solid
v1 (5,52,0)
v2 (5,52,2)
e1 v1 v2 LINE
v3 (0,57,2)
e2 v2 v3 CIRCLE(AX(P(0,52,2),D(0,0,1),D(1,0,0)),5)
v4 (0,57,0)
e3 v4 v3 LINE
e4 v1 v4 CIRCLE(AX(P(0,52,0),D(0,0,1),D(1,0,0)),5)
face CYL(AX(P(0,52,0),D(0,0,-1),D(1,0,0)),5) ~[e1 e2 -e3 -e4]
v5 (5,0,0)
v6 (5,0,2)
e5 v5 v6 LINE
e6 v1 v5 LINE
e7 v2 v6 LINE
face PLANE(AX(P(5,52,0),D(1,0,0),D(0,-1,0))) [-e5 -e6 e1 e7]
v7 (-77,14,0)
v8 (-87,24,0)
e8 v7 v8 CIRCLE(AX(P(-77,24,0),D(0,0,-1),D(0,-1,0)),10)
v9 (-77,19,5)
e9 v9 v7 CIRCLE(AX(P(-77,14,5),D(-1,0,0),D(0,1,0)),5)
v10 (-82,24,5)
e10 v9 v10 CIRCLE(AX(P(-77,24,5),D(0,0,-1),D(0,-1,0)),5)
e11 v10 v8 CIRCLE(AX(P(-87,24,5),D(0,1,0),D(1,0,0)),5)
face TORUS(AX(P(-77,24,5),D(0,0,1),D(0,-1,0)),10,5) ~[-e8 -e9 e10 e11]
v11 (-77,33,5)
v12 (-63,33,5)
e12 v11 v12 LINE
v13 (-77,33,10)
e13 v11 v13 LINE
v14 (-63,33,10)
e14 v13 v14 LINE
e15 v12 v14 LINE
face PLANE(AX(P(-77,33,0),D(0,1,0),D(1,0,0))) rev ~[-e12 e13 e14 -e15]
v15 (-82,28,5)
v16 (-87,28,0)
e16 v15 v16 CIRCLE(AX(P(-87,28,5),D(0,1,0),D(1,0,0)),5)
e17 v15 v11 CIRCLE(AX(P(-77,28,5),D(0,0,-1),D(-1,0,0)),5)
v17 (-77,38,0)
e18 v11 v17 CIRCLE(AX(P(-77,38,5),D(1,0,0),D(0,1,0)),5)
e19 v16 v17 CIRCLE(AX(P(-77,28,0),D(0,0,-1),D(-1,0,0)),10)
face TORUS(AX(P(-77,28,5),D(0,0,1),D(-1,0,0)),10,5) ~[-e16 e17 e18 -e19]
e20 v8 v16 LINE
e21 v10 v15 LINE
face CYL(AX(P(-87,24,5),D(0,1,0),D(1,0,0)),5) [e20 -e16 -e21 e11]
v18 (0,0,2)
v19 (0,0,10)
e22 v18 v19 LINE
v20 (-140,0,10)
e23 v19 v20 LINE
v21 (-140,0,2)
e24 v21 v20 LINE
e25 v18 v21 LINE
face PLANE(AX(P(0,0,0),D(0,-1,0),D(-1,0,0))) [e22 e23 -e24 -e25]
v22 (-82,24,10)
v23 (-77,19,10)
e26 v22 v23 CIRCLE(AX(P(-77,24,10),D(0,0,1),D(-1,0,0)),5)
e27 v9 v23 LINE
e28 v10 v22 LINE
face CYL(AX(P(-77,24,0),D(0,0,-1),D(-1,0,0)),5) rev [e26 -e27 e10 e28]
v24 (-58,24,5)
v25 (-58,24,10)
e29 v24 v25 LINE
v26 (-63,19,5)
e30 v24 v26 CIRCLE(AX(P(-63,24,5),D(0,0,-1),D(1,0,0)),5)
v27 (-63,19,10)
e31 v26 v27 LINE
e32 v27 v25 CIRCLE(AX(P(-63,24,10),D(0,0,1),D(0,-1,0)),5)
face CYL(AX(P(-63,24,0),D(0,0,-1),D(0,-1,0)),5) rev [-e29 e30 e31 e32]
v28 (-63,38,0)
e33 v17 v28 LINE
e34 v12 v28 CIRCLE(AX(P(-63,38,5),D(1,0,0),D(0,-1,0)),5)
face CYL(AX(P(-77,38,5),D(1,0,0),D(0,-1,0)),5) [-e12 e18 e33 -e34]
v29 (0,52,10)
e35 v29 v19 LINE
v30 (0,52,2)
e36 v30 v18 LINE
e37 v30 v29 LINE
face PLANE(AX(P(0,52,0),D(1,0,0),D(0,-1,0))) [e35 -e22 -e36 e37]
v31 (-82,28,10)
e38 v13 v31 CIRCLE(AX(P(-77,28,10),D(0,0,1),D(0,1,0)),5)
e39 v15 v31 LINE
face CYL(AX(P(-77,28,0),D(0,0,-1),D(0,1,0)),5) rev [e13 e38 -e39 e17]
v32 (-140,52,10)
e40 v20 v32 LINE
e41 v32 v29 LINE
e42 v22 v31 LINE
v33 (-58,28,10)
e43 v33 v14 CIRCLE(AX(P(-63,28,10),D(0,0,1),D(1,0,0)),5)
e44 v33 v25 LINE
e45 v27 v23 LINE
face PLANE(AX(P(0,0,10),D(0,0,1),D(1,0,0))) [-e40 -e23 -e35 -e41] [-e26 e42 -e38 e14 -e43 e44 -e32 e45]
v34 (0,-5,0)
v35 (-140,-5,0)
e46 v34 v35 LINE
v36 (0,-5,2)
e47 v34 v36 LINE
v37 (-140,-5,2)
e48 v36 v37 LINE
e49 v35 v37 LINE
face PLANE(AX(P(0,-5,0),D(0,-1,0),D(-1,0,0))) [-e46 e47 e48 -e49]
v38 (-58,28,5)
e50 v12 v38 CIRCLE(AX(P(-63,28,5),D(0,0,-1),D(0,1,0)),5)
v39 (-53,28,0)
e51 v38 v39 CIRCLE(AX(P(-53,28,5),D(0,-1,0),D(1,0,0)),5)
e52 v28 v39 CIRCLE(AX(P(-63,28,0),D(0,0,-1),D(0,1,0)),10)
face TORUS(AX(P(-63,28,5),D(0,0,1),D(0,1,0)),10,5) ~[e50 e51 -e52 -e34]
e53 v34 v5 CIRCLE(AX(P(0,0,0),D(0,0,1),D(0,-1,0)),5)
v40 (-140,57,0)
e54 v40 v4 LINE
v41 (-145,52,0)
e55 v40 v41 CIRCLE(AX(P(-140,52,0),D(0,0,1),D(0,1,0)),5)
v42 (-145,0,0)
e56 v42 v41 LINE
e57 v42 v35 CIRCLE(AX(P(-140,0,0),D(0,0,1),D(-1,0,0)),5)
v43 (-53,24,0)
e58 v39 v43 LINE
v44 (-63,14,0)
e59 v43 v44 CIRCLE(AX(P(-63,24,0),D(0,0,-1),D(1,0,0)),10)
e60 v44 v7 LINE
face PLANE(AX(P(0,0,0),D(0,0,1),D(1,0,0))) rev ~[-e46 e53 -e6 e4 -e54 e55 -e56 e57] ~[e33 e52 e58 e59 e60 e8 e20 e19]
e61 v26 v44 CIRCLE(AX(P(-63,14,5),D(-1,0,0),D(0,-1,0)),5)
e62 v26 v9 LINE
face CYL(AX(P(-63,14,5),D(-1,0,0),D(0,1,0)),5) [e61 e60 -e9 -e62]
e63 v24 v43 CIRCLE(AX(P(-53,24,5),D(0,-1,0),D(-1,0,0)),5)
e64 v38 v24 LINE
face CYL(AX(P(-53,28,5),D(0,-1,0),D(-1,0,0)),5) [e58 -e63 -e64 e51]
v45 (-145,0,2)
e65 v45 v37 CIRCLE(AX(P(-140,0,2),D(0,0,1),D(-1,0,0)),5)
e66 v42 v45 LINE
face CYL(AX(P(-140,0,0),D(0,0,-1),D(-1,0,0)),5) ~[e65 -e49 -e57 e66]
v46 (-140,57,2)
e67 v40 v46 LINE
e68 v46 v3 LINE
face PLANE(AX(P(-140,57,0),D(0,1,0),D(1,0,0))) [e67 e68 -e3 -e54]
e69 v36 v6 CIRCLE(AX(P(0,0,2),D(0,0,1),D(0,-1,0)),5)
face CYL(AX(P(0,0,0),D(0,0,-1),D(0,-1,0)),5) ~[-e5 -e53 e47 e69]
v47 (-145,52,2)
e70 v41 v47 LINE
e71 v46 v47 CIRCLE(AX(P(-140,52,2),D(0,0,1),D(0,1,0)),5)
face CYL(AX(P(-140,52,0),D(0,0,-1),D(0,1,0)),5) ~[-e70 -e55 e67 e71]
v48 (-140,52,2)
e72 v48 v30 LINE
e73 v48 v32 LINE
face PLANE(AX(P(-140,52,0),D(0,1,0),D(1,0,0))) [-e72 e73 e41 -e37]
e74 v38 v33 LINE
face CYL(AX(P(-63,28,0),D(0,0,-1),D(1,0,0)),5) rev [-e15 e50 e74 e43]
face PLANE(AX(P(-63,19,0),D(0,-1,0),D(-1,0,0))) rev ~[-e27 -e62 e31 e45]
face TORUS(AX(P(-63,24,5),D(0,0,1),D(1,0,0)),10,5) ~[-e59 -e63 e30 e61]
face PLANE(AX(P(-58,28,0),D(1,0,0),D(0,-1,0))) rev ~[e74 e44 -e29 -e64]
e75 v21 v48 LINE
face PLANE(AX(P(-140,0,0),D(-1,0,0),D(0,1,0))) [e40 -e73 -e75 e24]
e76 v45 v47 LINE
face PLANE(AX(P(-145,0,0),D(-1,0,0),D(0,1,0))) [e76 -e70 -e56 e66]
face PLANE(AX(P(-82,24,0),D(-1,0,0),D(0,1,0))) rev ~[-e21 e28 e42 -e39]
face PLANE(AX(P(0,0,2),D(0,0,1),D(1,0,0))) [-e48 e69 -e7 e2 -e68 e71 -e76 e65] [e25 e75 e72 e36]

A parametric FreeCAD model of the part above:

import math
import FreeCAD as App
import Part
import Sketcher
Q = App.Units.Quantity


def edges_at(feature, points):
    """Names of the edges that pass closest to the given points."""
    edges = feature.Shape.Edges
    near = lambda p: min(range(len(edges)), key=lambda i: edges[i].distToShape(Part.Vertex(*p))[0])
    return sorted({f"Edge{near(p) + 1}" for p in points})


def add_polygon(sketch, points):
    """Adds a closed chain of lines whose ends are joined by coincident constraints."""
    first, n = sketch.GeometryCount, len(points)
    for a, b in zip(points, points[1:] + points[:1]):
        sketch.addGeometry(Part.LineSegment(App.Vector(*a, 0), App.Vector(*b, 0)), False)
    for i in range(n):
        sketch.addConstraint(Sketcher.Constraint("Coincident", first + i, 2, first + (i + 1) % n, 1))

doc = App.newDocument("Part")
body = doc.addObject("PartDesign::Body", "Body")

# Sketch on XY plane
sketch1 = doc.addObject("Sketcher::SketchObject", "Sketch")
body.addObject(sketch1)
sketch1.AttachmentSupport = (doc.XY_Plane, [""])
sketch1.MapMode = "FlatFace"
add_polygon(sketch1, [(-140, 0), (0, 0), (0, 52), (-140, 52)])  # lines 0-3
sketch1.addGeometry(Part.ArcOfCircle(Part.Circle(App.Vector(-63, 24, 0), App.Vector(0, 0, 1), 5), math.radians(-90), math.radians(0)), False)  # 4
sketch1.addGeometry(Part.LineSegment(App.Vector(-63, 19, 0), App.Vector(-77, 19, 0)), False)  # 5
sketch1.addGeometry(Part.ArcOfCircle(Part.Circle(App.Vector(-77, 24, 0), App.Vector(0, 0, 1), 5), math.radians(180), math.radians(270)), False)  # 6
sketch1.addGeometry(Part.LineSegment(App.Vector(-82, 24, 0), App.Vector(-82, 28, 0)), False)  # 7
sketch1.addGeometry(Part.ArcOfCircle(Part.Circle(App.Vector(-77, 28, 0), App.Vector(0, 0, 1), 5), math.radians(90), math.radians(180)), False)  # 8
sketch1.addGeometry(Part.LineSegment(App.Vector(-77, 33, 0), App.Vector(-63, 33, 0)), False)  # 9
sketch1.addGeometry(Part.ArcOfCircle(Part.Circle(App.Vector(-63, 28, 0), App.Vector(0, 0, 1), 5), math.radians(0), math.radians(90)), False)  # 10
sketch1.addGeometry(Part.LineSegment(App.Vector(-58, 28, 0), App.Vector(-58, 24, 0)), False)  # 11
sketch1.addConstraint([
    Sketcher.Constraint("Tangent", 4, 1, 5, 1),
    Sketcher.Constraint("Tangent", 5, 2, 6, 2),
    Sketcher.Constraint("Tangent", 6, 1, 7, 1),
    Sketcher.Constraint("Tangent", 7, 2, 8, 2),
    Sketcher.Constraint("Tangent", 8, 1, 9, 1),
    Sketcher.Constraint("Tangent", 9, 2, 10, 2),
    Sketcher.Constraint("Tangent", 10, 1, 11, 1),
    Sketcher.Constraint("Tangent", 11, 2, 4, 2),
    Sketcher.Constraint("Horizontal", 0),
    Sketcher.Constraint("Vertical", 1),
    Sketcher.Constraint("Horizontal", 2),
    Sketcher.Constraint("Vertical", 3),
    Sketcher.Constraint("Horizontal", 5),
    Sketcher.Constraint("Vertical", 7),
    Sketcher.Constraint("Horizontal", 9),
    Sketcher.Constraint("Vertical", 11),
    Sketcher.Constraint("Coincident", 0, 2, -1, 1),
    Sketcher.Constraint("Equal", 4, 6),
    Sketcher.Constraint("Equal", 6, 8),
    Sketcher.Constraint("Equal", 8, 10),
    Sketcher.Constraint("Radius", 4, Q("5 mm")),
    Sketcher.Constraint("DistanceX", 0, 1, 0, 2, Q("140 mm")),
    Sketcher.Constraint("DistanceX", 5, 2, 5, 1, Q("14 mm")),
    Sketcher.Constraint("DistanceY", 1, 1, 1, 2, Q("52 mm")),
    Sketcher.Constraint("DistanceY", -1, 1, 4, 3, Q("24 mm")),
    Sketcher.Constraint("DistanceX", 10, 1, -1, 1, Q("58 mm")),
    Sketcher.Constraint("DistanceY", 10, 3, 1, 2, Q("24 mm")),
])
pad1 = doc.addObject("PartDesign::Pad", "Pad")
body.addObject(pad1)
pad1.Profile = sketch1
pad1.Length = 10
doc.recompute()

fillet = doc.addObject("PartDesign::Fillet", "Fillet")
body.addObject(fillet)
fillet.Base = (pad1, edges_at(pad1, [
    (-82, 26, 0),
    (-80.535, 31.535, 0),
    (-70, 33, 0),
    (-59.465, 31.535, 0),
    (-58, 26, 0),
    (-59.465, 20.465, 0),
    (-70, 19, 0),
    (-80.535, 20.465, 0),
]))
fillet.Radius = 5

# Sketch on XY plane
sketch2 = doc.addObject("Sketcher::SketchObject", "Sketch001")
body.addObject(sketch2)
sketch2.AttachmentSupport = (doc.XY_Plane, [""])
sketch2.MapMode = "FlatFace"
sketch2.addGeometry(Part.LineSegment(App.Vector(-140, -5, 0), App.Vector(0, -5, 0)), False)  # 0
sketch2.addGeometry(Part.ArcOfCircle(Part.Circle(App.Vector(0, 0, 0), App.Vector(0, 0, 1), 5), math.radians(-90), math.radians(0)), False)  # 1
sketch2.addGeometry(Part.LineSegment(App.Vector(5, 0, 0), App.Vector(5, 52, 0)), False)  # 2
sketch2.addGeometry(Part.ArcOfCircle(Part.Circle(App.Vector(0, 52, 0), App.Vector(0, 0, 1), 5), math.radians(0), math.radians(90)), False)  # 3
sketch2.addGeometry(Part.LineSegment(App.Vector(0, 57, 0), App.Vector(-140, 57, 0)), False)  # 4
sketch2.addGeometry(Part.ArcOfCircle(Part.Circle(App.Vector(-140, 52, 0), App.Vector(0, 0, 1), 5), math.radians(90), math.radians(180)), False)  # 5
sketch2.addGeometry(Part.LineSegment(App.Vector(-145, 52, 0), App.Vector(-145, 0, 0)), False)  # 6
sketch2.addGeometry(Part.ArcOfCircle(Part.Circle(App.Vector(-140, 0, 0), App.Vector(0, 0, 1), 5), math.radians(180), math.radians(270)), False)  # 7
add_polygon(sketch2, [(0, 52), (0, 0), (-140, 0), (-140, 52)])  # lines 8-11
sketch2.addConstraint([
    Sketcher.Constraint("Tangent", 0, 2, 1, 1),
    Sketcher.Constraint("Tangent", 1, 2, 2, 1),
    Sketcher.Constraint("Tangent", 2, 2, 3, 1),
    Sketcher.Constraint("Tangent", 3, 2, 4, 1),
    Sketcher.Constraint("Tangent", 4, 2, 5, 1),
    Sketcher.Constraint("Tangent", 5, 2, 6, 1),
    Sketcher.Constraint("Tangent", 6, 2, 7, 1),
    Sketcher.Constraint("Tangent", 7, 2, 0, 1),
    Sketcher.Constraint("Horizontal", 0),
    Sketcher.Constraint("Vertical", 2),
    Sketcher.Constraint("Horizontal", 4),
    Sketcher.Constraint("Vertical", 6),
    Sketcher.Constraint("Vertical", 8),
    Sketcher.Constraint("Horizontal", 9),
    Sketcher.Constraint("Vertical", 10),
    Sketcher.Constraint("Horizontal", 11),
    Sketcher.Constraint("Coincident", 1, 3, -1, 1),
    Sketcher.Constraint("Coincident", 8, 2, -1, 1),
    Sketcher.Constraint("Coincident", 9, 2, 7, 3),
    Sketcher.Constraint("Coincident", 10, 2, 5, 3),
    Sketcher.Constraint("Equal", 1, 3),
    Sketcher.Constraint("Radius", 1, Q("5 mm")),
    Sketcher.Constraint("DistanceX", 0, 1, 0, 2, Q("140 mm")),
    Sketcher.Constraint("DistanceY", 2, 1, 2, 2, Q("52 mm")),
])
pad2 = doc.addObject("PartDesign::Pad", "Pad001")
body.addObject(pad2)
pad2.Profile = sketch2
pad2.Length = 2

doc.recompute()
